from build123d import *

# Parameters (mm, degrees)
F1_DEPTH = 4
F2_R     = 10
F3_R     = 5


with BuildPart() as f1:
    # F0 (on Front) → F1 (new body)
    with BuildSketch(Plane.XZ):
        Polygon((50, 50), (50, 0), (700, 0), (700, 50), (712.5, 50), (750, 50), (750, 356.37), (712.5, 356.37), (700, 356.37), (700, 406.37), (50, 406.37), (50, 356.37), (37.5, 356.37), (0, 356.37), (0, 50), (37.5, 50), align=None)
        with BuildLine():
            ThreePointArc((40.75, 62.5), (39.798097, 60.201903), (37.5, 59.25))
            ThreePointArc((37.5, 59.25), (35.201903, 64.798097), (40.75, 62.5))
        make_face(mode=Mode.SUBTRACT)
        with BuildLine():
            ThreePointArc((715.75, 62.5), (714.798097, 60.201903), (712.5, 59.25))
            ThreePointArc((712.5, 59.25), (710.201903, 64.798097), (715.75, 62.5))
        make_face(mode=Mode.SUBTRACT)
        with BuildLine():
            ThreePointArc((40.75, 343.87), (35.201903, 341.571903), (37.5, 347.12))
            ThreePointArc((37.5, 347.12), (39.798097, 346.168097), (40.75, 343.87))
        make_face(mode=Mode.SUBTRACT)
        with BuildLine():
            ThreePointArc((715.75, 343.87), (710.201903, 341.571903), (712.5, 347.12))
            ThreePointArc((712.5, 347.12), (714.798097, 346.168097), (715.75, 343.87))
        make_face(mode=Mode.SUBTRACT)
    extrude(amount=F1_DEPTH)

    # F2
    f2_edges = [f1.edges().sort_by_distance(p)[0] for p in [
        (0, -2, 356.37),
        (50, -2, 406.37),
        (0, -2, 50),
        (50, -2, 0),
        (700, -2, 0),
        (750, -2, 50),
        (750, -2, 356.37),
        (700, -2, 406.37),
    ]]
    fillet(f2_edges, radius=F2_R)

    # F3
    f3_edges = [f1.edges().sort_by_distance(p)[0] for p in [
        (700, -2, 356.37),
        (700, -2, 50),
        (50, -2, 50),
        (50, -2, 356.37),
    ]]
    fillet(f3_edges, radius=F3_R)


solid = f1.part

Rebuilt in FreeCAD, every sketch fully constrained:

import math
import FreeCAD as App
import Part
import Sketcher
Q = App.Units.Quantity


def edges_at(feature, points):
    """Names of the edges that pass closest to the given points."""
    edges = feature.Shape.Edges
    near = lambda p: min(range(len(edges)), key=lambda i: edges[i].distToShape(Part.Vertex(*p))[0])
    return sorted({f"Edge{near(p) + 1}" for p in points})

doc = App.newDocument("Part")
body = doc.addObject("PartDesign::Body", "Body")

sketch1 = body.newObject("Sketcher::SketchObject", "Sketch")
sketch1.AttachmentSupport = (doc.getObject("XZ_Plane"), [""])
sketch1.MapMode = "FlatFace"
sketch1.addGeometry(Part.LineSegment(App.Vector(50, 50, 0), App.Vector(50, 0, 0)), False)
sketch1.addGeometry(Part.LineSegment(App.Vector(50, 0, 0), App.Vector(700, 0, 0)), False)
sketch1.addGeometry(Part.LineSegment(App.Vector(700, 0, 0), App.Vector(700, 50, 0)), False)
sketch1.addGeometry(Part.LineSegment(App.Vector(700, 50, 0), App.Vector(750, 50, 0)), False)
sketch1.addGeometry(Part.LineSegment(App.Vector(750, 50, 0), App.Vector(750, 356.4, 0)), False)
sketch1.addGeometry(Part.LineSegment(App.Vector(750, 356.4, 0), App.Vector(700, 356.4, 0)), False)
sketch1.addGeometry(Part.LineSegment(App.Vector(700, 356.4, 0), App.Vector(700, 406.4, 0)), False)
sketch1.addGeometry(Part.LineSegment(App.Vector(700, 406.4, 0), App.Vector(50, 406.4, 0)), False)
sketch1.addGeometry(Part.LineSegment(App.Vector(50, 406.4, 0), App.Vector(50, 356.4, 0)), False)
sketch1.addGeometry(Part.LineSegment(App.Vector(50, 356.4, 0), App.Vector(0, 356.4, 0)), False)
sketch1.addGeometry(Part.LineSegment(App.Vector(0, 356.4, 0), App.Vector(0, 50, 0)), False)
sketch1.addGeometry(Part.LineSegment(App.Vector(0, 50, 0), App.Vector(50, 50, 0)), False)
sketch1.addGeometry(Part.ArcOfCircle(Part.Circle(App.Vector(37.5, 62.5, 0), App.Vector(0, 0, 1), 3.2), math.radians(0), math.radians(270)), False)
sketch1.addGeometry(Part.ArcOfCircle(Part.Circle(App.Vector(37.5, 62.5, 0), App.Vector(0, 0, 1), 3.3), math.radians(-90), math.radians(0)), False)
sketch1.addGeometry(Part.ArcOfCircle(Part.Circle(App.Vector(712.5, 62.5, 0), App.Vector(0, 0, 1), 3.2), math.radians(0), math.radians(270)), False)
sketch1.addGeometry(Part.ArcOfCircle(Part.Circle(App.Vector(712.5, 62.5, 0), App.Vector(0, 0, 1), 3.3), math.radians(-90), math.radians(0)), False)
sketch1.addGeometry(Part.ArcOfCircle(Part.Circle(App.Vector(37.5, 343.9, 0), App.Vector(0, 0, 1), 3.3), math.radians(0), math.radians(90)), False)
sketch1.addGeometry(Part.ArcOfCircle(Part.Circle(App.Vector(37.5, 343.9, 0), App.Vector(0, 0, 1), 3.2), math.radians(90), math.radians(360)), False)
sketch1.addGeometry(Part.ArcOfCircle(Part.Circle(App.Vector(712.5, 343.9, 0), App.Vector(0, 0, 1), 3.3), math.radians(0), math.radians(90)), False)
sketch1.addGeometry(Part.ArcOfCircle(Part.Circle(App.Vector(712.5, 343.9, 0), App.Vector(0, 0, 1), 3.2), math.radians(90), math.radians(360)), False)
sketch1.addConstraint(Sketcher.Constraint("Coincident", 0, 2, 1, 1))
sketch1.addConstraint(Sketcher.Constraint("Coincident", 1, 2, 2, 1))
sketch1.addConstraint(Sketcher.Constraint("Coincident", 2, 2, 3, 1))
sketch1.addConstraint(Sketcher.Constraint("Coincident", 3, 2, 4, 1))
sketch1.addConstraint(Sketcher.Constraint("Coincident", 4, 2, 5, 1))
sketch1.addConstraint(Sketcher.Constraint("Coincident", 5, 2, 6, 1))
sketch1.addConstraint(Sketcher.Constraint("Coincident", 6, 2, 7, 1))
sketch1.addConstraint(Sketcher.Constraint("Coincident", 7, 2, 8, 1))
sketch1.addConstraint(Sketcher.Constraint("Coincident", 8, 2, 9, 1))
sketch1.addConstraint(Sketcher.Constraint("Coincident", 9, 2, 10, 1))
sketch1.addConstraint(Sketcher.Constraint("Coincident", 10, 2, 11, 1))
sketch1.addConstraint(Sketcher.Constraint("Coincident", 11, 2, 0, 1))
sketch1.addConstraint(Sketcher.Constraint("Tangent", 12, 1, 13, 2))
sketch1.addConstraint(Sketcher.Constraint("Coincident", 13, 1, 12, 2))
sketch1.addConstraint(Sketcher.Constraint("Tangent", 14, 1, 15, 2))
sketch1.addConstraint(Sketcher.Constraint("Coincident", 15, 1, 14, 2))
sketch1.addConstraint(Sketcher.Constraint("Tangent", 16, 1, 17, 2))
sketch1.addConstraint(Sketcher.Constraint("Coincident", 17, 1, 16, 2))
sketch1.addConstraint(Sketcher.Constraint("Tangent", 18, 1, 19, 2))
sketch1.addConstraint(Sketcher.Constraint("Coincident", 19, 1, 18, 2))
sketch1.addConstraint(Sketcher.Constraint("Vertical", 0))
sketch1.addConstraint(Sketcher.Constraint("Horizontal", 1))
sketch1.addConstraint(Sketcher.Constraint("Vertical", 2))
sketch1.addConstraint(Sketcher.Constraint("Horizontal", 3))
sketch1.addConstraint(Sketcher.Constraint("Vertical", 4))
sketch1.addConstraint(Sketcher.Constraint("Horizontal", 5))
sketch1.addConstraint(Sketcher.Constraint("Vertical", 6))
sketch1.addConstraint(Sketcher.Constraint("Horizontal", 7))
sketch1.addConstraint(Sketcher.Constraint("Vertical", 8))
sketch1.addConstraint(Sketcher.Constraint("Horizontal", 9))
sketch1.addConstraint(Sketcher.Constraint("Vertical", 10))
sketch1.addConstraint(Sketcher.Constraint("Horizontal", 11))
sketch1.addConstraint(Sketcher.Constraint("Equal", 13, 14))
sketch1.addConstraint(Sketcher.Constraint("Equal", 15, 16))
sketch1.addConstraint(Sketcher.Constraint("Equal", 17, 18))
sketch1.addConstraint(Sketcher.Constraint("PointOnObject", 0, 2, -1))
sketch1.addConstraint(Sketcher.Constraint("PointOnObject", 9, 2, -2))
sketch1.addConstraint(Sketcher.Constraint("Horizontal", 13, 3, 14, 3))
sketch1.addConstraint(Sketcher.Constraint("Horizontal", 17, 3, 18, 3))
sketch1.addConstraint(Sketcher.Constraint("Horizontal", 5, 2, 8, 2))
sketch1.addConstraint(Sketcher.Constraint("Horizontal", 3, 2, 10, 2))
sketch1.addConstraint(Sketcher.Constraint("Horizontal", 15, 3, 12, 1))
sketch1.addConstraint(Sketcher.Constraint("Horizontal", 12, 1, 14, 1))
sketch1.addConstraint(Sketcher.Constraint("Horizontal", 19, 3, 16, 1))
sketch1.addConstraint(Sketcher.Constraint("Horizontal", 16, 1, 18, 1))
sketch1.addConstraint(Sketcher.Constraint("Vertical", 13, 3, 16, 3))
sketch1.addConstraint(Sketcher.Constraint("Vertical", 15, 3, 18, 3))
sketch1.addConstraint(Sketcher.Constraint("Vertical", 2, 2, 5, 2))
sketch1.addConstraint(Sketcher.Constraint("Vertical", 0, 2, 7, 2))
sketch1.addConstraint(Sketcher.Constraint("Vertical", 17, 3, 13, 1))
sketch1.addConstraint(Sketcher.Constraint("Vertical", 19, 3, 15, 1))
sketch1.addConstraint(Sketcher.Constraint("Vertical", 13, 1, 17, 1))
sketch1.addConstraint(Sketcher.Constraint("Vertical", 15, 1, 19, 1))
sketch1.addConstraint(Sketcher.Constraint("Equal", 5, 9))
sketch1.addConstraint(Sketcher.Constraint("Equal", 11, 0))
sketch1.addConstraint(Sketcher.Constraint("Equal", 2, 6))
sketch1.addConstraint(Sketcher.Constraint("DistanceX", 1, 1, 1, 2, Q("650 mm")))
sketch1.addConstraint(Sketcher.Constraint("DistanceX", 3, 1, 3, 2, Q("50 mm")))
sketch1.addConstraint(Sketcher.Constraint("Radius", 12, Q("3.25 mm")))
sketch1.addConstraint(Sketcher.Constraint("DistanceX", 12, 3, 14, 3, Q("675 mm")))
sketch1.addConstraint(Sketcher.Constraint("DistanceY", 4, 1, 4, 2, Q("306.37 mm")))
sketch1.addConstraint(Sketcher.Constraint("DistanceX", -1, 1, 12, 3, Q("37.5 mm")))
sketch1.addConstraint(Sketcher.Constraint("DistanceY", -1, 1, 12, 3, Q("62.5 mm")))
sketch1.addConstraint(Sketcher.Constraint("DistanceY", 19, 3, 4, 2, Q("12.5 mm")))
pad1 = body.newObject("PartDesign::Pad", "Pad")
pad1.Profile = sketch1
pad1.Length = 4
doc.recompute()

fillet = body.newObject("PartDesign::Fillet", "Fillet")
fillet.Base = (pad1, edges_at(pad1, [
    (0, -2, 356.37),
    (50, -2, 406.37),
    (0, -2, 50),
    (50, -2, 0),
    (700, -2, 0),
    (750, -2, 50),
    (750, -2, 356.37),
    (700, -2, 406.37),
]))
fillet.Radius = 10
doc.recompute()

fillet2 = body.newObject("PartDesign::Fillet", "Fillet001")
fillet2.Base = (fillet, edges_at(fillet, [
    (700, -2, 356.37),
    (700, -2, 50),
    (50, -2, 50),
    (50, -2, 356.37),
]))
fillet2.Radius = 5

doc.recompute()
